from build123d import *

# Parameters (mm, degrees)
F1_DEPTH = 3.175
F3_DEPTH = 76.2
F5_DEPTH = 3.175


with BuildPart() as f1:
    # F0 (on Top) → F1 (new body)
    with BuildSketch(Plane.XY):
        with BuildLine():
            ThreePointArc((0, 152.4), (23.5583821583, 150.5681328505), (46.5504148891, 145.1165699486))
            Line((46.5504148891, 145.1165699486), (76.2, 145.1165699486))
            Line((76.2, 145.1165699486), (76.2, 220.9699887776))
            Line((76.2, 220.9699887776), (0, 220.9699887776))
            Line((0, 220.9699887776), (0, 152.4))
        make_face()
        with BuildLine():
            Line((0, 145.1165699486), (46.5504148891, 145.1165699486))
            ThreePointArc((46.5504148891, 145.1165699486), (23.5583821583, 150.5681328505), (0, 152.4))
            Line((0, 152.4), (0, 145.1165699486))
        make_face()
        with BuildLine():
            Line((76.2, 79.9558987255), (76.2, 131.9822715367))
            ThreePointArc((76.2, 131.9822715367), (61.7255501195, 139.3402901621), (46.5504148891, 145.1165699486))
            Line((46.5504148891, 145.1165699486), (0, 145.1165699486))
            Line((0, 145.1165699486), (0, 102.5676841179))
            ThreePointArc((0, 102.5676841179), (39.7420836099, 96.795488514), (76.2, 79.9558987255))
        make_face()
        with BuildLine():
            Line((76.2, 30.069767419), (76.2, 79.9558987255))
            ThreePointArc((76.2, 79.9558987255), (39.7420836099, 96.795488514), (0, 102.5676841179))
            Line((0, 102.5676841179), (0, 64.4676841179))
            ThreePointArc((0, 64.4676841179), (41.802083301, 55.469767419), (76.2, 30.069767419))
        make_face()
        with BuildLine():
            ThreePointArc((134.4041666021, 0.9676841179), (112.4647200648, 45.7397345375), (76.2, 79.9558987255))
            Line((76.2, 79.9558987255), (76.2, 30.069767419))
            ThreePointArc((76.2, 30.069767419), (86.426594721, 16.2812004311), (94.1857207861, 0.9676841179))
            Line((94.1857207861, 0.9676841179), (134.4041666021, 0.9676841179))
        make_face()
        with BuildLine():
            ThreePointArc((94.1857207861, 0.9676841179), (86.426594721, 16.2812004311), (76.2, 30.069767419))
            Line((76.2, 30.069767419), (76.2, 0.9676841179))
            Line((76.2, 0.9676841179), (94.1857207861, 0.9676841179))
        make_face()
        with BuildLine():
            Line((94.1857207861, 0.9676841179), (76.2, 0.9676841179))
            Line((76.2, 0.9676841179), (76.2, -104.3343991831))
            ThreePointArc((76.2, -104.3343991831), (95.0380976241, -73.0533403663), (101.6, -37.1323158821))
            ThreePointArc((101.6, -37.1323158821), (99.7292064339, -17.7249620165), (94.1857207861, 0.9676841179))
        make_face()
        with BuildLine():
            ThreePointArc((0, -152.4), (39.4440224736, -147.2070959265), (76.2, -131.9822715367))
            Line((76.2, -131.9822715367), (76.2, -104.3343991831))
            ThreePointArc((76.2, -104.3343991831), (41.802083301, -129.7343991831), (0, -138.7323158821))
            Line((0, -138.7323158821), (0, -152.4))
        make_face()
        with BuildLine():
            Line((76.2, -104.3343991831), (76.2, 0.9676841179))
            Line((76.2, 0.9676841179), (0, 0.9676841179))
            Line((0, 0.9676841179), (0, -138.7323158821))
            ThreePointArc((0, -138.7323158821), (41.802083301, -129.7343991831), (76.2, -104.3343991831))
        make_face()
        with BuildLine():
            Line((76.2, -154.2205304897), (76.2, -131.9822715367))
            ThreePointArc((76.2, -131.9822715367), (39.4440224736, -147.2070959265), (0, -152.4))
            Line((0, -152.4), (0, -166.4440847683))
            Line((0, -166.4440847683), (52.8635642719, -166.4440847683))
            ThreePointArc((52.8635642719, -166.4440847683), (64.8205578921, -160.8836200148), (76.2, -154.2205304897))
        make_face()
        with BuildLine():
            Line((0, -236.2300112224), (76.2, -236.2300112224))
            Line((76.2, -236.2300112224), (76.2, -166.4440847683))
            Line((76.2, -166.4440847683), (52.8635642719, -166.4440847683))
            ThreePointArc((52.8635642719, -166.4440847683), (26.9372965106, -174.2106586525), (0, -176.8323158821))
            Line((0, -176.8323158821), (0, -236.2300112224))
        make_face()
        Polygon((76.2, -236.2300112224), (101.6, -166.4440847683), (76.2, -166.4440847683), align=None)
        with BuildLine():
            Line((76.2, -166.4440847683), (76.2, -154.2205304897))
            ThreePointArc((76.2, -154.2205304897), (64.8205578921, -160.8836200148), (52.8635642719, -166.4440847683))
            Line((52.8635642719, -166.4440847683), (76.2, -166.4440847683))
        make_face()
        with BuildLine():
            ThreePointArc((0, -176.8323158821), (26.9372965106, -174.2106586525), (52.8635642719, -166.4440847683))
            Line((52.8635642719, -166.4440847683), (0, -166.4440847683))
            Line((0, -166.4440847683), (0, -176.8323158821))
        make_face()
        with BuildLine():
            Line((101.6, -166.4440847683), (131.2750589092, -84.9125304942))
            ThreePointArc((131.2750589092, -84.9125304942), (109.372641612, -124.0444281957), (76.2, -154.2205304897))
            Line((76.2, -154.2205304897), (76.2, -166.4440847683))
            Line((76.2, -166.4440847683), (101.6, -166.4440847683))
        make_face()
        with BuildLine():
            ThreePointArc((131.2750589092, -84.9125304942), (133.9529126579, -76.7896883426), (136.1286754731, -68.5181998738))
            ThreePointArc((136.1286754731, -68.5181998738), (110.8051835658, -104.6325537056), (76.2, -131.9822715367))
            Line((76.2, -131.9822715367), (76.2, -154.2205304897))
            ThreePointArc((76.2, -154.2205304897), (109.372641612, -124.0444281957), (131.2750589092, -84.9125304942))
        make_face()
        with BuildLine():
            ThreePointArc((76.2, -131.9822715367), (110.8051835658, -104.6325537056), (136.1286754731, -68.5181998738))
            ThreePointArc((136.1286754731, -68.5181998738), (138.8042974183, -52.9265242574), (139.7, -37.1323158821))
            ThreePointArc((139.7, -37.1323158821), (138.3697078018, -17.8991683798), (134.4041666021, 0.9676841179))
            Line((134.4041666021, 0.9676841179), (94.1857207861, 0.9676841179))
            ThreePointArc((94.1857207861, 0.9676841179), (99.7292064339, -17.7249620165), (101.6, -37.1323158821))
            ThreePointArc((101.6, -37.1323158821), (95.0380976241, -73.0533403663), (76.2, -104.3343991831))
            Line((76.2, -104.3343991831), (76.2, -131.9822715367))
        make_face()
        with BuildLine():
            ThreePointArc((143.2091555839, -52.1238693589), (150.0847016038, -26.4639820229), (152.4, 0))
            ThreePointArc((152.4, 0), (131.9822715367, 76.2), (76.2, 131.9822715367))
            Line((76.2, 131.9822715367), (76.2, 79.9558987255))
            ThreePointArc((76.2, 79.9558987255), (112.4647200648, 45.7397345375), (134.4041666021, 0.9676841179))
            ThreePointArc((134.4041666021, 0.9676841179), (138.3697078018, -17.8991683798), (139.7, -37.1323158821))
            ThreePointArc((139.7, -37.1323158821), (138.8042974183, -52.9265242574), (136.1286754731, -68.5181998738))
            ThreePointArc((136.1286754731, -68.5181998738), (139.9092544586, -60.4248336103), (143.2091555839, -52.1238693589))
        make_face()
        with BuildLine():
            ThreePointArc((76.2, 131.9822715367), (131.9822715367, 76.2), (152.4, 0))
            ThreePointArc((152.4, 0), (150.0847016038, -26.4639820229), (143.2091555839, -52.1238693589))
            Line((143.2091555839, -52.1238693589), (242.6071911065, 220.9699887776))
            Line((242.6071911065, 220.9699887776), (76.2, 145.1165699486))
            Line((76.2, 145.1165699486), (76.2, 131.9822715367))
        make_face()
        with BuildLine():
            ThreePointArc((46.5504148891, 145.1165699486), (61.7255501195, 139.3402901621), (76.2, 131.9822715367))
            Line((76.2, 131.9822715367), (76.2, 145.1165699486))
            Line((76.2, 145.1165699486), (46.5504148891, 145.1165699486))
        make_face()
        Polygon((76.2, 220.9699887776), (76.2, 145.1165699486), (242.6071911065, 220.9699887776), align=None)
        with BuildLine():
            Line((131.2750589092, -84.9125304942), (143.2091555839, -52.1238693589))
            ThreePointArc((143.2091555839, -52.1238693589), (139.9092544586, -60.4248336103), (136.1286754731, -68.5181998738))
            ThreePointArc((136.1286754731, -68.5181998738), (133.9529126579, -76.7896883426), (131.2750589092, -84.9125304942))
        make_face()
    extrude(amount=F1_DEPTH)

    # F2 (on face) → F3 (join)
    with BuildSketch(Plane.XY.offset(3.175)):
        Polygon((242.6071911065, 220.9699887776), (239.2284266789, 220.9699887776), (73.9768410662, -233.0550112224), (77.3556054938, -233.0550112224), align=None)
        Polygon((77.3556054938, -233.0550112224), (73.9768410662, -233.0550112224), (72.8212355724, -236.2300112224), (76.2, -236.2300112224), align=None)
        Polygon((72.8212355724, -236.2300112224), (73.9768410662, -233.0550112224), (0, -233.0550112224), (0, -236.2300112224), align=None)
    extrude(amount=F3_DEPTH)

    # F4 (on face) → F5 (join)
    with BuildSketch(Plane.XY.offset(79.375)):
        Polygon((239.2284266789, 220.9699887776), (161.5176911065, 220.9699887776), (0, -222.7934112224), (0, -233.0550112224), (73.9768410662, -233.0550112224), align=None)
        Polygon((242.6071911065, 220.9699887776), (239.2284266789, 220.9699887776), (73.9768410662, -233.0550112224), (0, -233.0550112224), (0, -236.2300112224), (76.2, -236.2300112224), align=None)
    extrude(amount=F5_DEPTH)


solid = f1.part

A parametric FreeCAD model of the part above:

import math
import FreeCAD as App
import Part
import Sketcher

V = App.Vector
Q = App.Units.Quantity


def add_polygon(sketch, points):
    """Adds a closed chain of lines whose ends are joined by coincident constraints."""
    first, n = sketch.GeometryCount, len(points)
    for a, b in zip(points, points[1:] + points[:1]):
        sketch.addGeometry(Part.LineSegment(App.Vector(*a, 0), App.Vector(*b, 0)), False)
    for i in range(n):
        sketch.addConstraint(Sketcher.Constraint("Coincident", first + i, 2, first + (i + 1) % n, 1))

doc = App.newDocument("Part")
params = doc.addObject("Spreadsheet::Sheet", "Params")
for row, (alias, value) in enumerate([
    ("sketch1_radius", "4 in"),
    ("sketch1_width", "3 in"),
    ("pad1_length", "0.125 in"),
    ("sketch2_width", "3 in"),
    ("sketch2_height", "0.125 in"),
    ("pad2_length", "3 in"),
    ("sketch3_width", "3 in"),
    ("sketch3_height", "0.529 in"),
    ("pad3_length", "0.125 in"),
], start=1):
    params.set(f"A{row}", alias)
    params.set(f"B{row}", "=" + value)
    params.setAlias(f"B{row}", alias)

body = doc.addObject("PartDesign::Body", "Body")

# Sketch on XY plane
sketch1 = doc.addObject("Sketcher::SketchObject", "Sketch")
body.addObject(sketch1)
sketch1.AttachmentSupport = (doc.XY_Plane, [""])
sketch1.MapMode = "FlatFace"
sketch1.addGeometry([
    Part.LineSegment(V(0, 221, 0), V(0, 64, 0)),  # 0
    Part.ArcOfCircle(Part.Circle(V(0, -37, 0), V(0, 0, 1), 102), math.radians(41), math.radians(90)),  # 1
    Part.LineSegment(V(76, 30, 0), V(76, 1, 0)),  # 2
    Part.LineSegment(V(76, 1, 0), V(0, 1, 0)),  # 3
    Part.LineSegment(V(0, 1, 0), V(0, -236, 0)),  # 4
    Part.LineSegment(V(0, -236, 0), V(76, -236, 0)),  # 5
    Part.LineSegment(V(76, -236, 0), V(243, 221, 0)),  # 6
    Part.LineSegment(V(243, 221, 0), V(0, 221, 0)),  # 7
], False)
sketch1.addConstraint([
    Sketcher.Constraint("Coincident", 0, 2, 1, 2),
    Sketcher.Constraint("Coincident", 1, 1, 2, 1),
    Sketcher.Constraint("Coincident", 2, 2, 3, 1),
    Sketcher.Constraint("Coincident", 3, 2, 4, 1),
    Sketcher.Constraint("Coincident", 4, 2, 5, 1),
    Sketcher.Constraint("Coincident", 5, 2, 6, 1),
    Sketcher.Constraint("Coincident", 6, 2, 7, 1),
    Sketcher.Constraint("Coincident", 7, 2, 0, 1),
    Sketcher.Constraint("Vertical", 0),
    Sketcher.Constraint("Vertical", 2),
    Sketcher.Constraint("Horizontal", 3),
    Sketcher.Constraint("Vertical", 4),
    Sketcher.Constraint("Horizontal", 5),
    Sketcher.Constraint("Horizontal", 7),
    Sketcher.Constraint("PointOnObject", 1, 3, -2),
    Sketcher.Constraint("PointOnObject", 0, 2, -2),
    Sketcher.Constraint("PointOnObject", 3, 2, -2),
    Sketcher.Constraint("Vertical", 2, 2, 5, 2),
    Sketcher.Constraint("Radius", 1, Q("4 in")),
    Sketcher.Constraint("DistanceX", 3, 2, 3, 1, Q("3 in")),
    Sketcher.Constraint("Angle", 6, Q("70 deg")),
    Sketcher.Constraint("DistanceY", 1, 3, 2, 2, Q("1.5 in")),
    Sketcher.Constraint("Distance", 6, Q("19.1551999 in")),
    Sketcher.Constraint("DistanceY", 0, 2, 0, 1, Q("156.502305 mm")),
    Sketcher.Constraint("DistanceY", 4, 2, -1, 1, Q("236.230011 mm")),
])
sketch1.setExpression("Constraints[18]", "Params.sketch1_radius")
sketch1.setExpression("Constraints[19]", "Params.sketch1_width")
pad1 = doc.addObject("PartDesign::Pad", "Pad")
body.addObject(pad1)
pad1.Profile = sketch1
pad1.setExpression("Length", "Params.pad1_length")

# Sketch on XY plane
sketch2 = doc.addObject("Sketcher::SketchObject", "Sketch001")
body.addObject(sketch2)
sketch2.AttachmentSupport = (doc.XY_Plane, [""])
sketch2.MapMode = "FlatFace"
sketch2.AttachmentOffset = App.Placement(V(0, 0, 0.125 * 25.4), App.Rotation())
add_polygon(sketch2, [(242.6, 221), (239.2, 221), (74, -233.1), (0, -233.1), (0, -236.2), (76.2, -236.2), (77.4, -233.1)])  # lines 0-6
sketch2.addConstraint([
    Sketcher.Constraint("Horizontal", 0),
    Sketcher.Constraint("Horizontal", 2),
    Sketcher.Constraint("Vertical", 3),
    Sketcher.Constraint("Horizontal", 4),
    Sketcher.Constraint("PointOnObject", 2, 2, -2),
    Sketcher.Constraint("Parallel", 1, 5),
    Sketcher.Constraint("Parallel", 5, 6),
    Sketcher.Constraint("Horizontal", 2, 2, 5, 2),
    Sketcher.Constraint("DistanceX", 4, 1, 4, 2, Q("3 in")),
    Sketcher.Constraint("Angle", 1, Q("-110 deg")),
    Sketcher.Constraint("DistanceY", 3, 2, 0, 2, Q("18 in")),
    Sketcher.Constraint("DistanceY", 3, 2, 3, 1, Q("0.125 in")),
    Sketcher.Constraint("DistanceX", 2, 2, 2, 1, Q("73.976841 mm")),
    Sketcher.Constraint("DistanceY", -1, 1, 0, 2, Q("220.969989 mm")),
])
sketch2.setExpression("Constraints[15]", "Params.sketch2_width")
sketch2.setExpression("Constraints[18]", "Params.sketch2_height")
pad2 = doc.addObject("PartDesign::Pad", "Pad001")
body.addObject(pad2)
pad2.Profile = sketch2
pad2.setExpression("Length", "Params.pad2_length")

# Sketch on XY plane
sketch3 = doc.addObject("Sketcher::SketchObject", "Sketch002")
body.addObject(sketch3)
sketch3.AttachmentSupport = (doc.XY_Plane, [""])
sketch3.MapMode = "FlatFace"
sketch3.AttachmentOffset = App.Placement(V(0, 0, 3.125 * 25.4), App.Rotation())
add_polygon(sketch3, [(162, 221), (0, -223), (0, -236), (76, -236), (243, 221)])  # lines 0-4
sketch3.addConstraint([
    Sketcher.Constraint("Vertical", 1),
    Sketcher.Constraint("Horizontal", 2),
    Sketcher.Constraint("Horizontal", 4),
    Sketcher.Constraint("PointOnObject", 0, 2, -2),
    Sketcher.Constraint("DistanceX", 2, 1, 2, 2, Q("3 in")),
    Sketcher.Constraint("Angle", 3, Q("70 deg")),
    Sketcher.Constraint("DistanceY", 2, 2, 3, 2, Q("18 in")),
    Sketcher.Constraint("DistanceY", 1, 2, 1, 1, Q("0.529 in")),
    Sketcher.Constraint("DistanceX", 4, 2, 4, 1, Q("3.1925 in")),
    Sketcher.Constraint("DistanceY", 0, 2, -1, 1, Q("222.793411 mm")),
])
sketch3.setExpression("Constraints[9]", "Params.sketch3_width")
sketch3.setExpression("Constraints[12]", "Params.sketch3_height")
pad3 = doc.addObject("PartDesign::Pad", "Pad002")
body.addObject(pad3)
pad3.Profile = sketch3
pad3.setExpression("Length", "Params.pad3_length")

doc.recompute()
